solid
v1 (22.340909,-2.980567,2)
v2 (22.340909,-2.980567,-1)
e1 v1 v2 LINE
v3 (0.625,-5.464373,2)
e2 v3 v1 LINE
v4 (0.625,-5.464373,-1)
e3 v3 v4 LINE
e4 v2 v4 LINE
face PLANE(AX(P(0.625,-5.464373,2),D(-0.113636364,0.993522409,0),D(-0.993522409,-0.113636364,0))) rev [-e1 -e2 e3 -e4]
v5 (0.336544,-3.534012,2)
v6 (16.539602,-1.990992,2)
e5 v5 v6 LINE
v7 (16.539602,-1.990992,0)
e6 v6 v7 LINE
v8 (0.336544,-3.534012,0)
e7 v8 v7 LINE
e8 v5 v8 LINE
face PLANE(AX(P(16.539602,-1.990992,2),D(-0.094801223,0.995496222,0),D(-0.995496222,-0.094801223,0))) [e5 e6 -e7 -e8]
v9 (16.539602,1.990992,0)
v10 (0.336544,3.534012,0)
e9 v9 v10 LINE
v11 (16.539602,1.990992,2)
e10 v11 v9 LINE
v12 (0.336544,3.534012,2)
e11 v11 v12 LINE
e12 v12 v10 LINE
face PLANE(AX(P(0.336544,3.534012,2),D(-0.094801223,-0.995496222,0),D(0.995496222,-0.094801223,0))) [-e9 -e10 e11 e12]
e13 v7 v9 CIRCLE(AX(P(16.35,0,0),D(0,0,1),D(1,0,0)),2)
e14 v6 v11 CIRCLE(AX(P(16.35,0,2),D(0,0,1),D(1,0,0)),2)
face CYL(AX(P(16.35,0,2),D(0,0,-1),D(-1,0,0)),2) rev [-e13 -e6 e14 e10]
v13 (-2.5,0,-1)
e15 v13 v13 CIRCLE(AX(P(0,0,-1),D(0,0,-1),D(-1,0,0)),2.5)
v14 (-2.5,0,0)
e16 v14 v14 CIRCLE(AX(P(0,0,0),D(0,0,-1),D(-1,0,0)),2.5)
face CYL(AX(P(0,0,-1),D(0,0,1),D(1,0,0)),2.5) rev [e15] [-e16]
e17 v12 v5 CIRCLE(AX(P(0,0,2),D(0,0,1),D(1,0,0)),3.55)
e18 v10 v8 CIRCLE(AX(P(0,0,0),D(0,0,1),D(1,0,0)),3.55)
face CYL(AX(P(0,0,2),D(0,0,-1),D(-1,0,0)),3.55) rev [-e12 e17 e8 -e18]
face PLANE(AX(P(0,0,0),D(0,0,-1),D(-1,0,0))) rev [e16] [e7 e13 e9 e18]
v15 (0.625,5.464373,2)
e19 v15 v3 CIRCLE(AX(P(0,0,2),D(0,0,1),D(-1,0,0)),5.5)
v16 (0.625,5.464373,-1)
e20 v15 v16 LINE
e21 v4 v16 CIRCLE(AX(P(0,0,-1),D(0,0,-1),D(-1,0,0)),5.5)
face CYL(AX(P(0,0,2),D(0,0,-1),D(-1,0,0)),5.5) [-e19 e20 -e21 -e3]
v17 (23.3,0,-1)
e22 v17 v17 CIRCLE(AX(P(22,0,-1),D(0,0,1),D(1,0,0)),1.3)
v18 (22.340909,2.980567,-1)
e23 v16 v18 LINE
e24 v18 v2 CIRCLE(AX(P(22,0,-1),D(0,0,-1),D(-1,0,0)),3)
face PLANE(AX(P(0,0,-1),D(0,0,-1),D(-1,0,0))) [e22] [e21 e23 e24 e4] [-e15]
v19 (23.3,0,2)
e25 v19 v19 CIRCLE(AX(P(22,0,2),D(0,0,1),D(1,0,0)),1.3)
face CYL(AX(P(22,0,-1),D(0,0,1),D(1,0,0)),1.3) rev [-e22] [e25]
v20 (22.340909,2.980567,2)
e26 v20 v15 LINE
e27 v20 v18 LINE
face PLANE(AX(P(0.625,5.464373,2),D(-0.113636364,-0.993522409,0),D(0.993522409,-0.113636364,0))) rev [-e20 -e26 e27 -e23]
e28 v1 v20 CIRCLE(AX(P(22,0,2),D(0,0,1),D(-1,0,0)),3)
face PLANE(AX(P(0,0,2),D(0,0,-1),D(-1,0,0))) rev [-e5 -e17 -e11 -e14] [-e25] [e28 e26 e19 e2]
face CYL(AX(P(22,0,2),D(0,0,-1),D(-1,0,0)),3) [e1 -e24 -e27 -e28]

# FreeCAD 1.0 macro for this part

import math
import FreeCAD as App
import Part
import Sketcher
Q = App.Units.Quantity

doc = App.newDocument("Part")
body = doc.addObject("PartDesign::Body", "Body")

# Sketch on XY plane
sketch1 = doc.addObject("Sketcher::SketchObject", "Sketch")
body.addObject(sketch1)
sketch1.AttachmentSupport = (doc.XY_Plane, [""])
sketch1.MapMode = "FlatFace"
sketch1.addGeometry([
    Part.LineSegment(App.Vector(22.3, 3, 0), App.Vector(0.6, 5.5, 0)),  # 0
    Part.ArcOfCircle(Part.Circle(App.Vector(0, 0, 0), App.Vector(0, 0, 1), 5.5), math.radians(83), math.radians(277)),  # 1
    Part.LineSegment(App.Vector(0.6, -5.5, 0), App.Vector(22.3, -3, 0)),  # 2
    Part.ArcOfCircle(Part.Circle(App.Vector(22, 0, 0), App.Vector(0, 0, 1), 3), math.radians(-83), math.radians(83)),  # 3
    Part.LineSegment(App.Vector(0.3, 3.5, 0), App.Vector(16.5, 2, 0)),  # 4
    Part.ArcOfCircle(Part.Circle(App.Vector(16.4, 0, 0), App.Vector(0, 0, 1), 2), math.radians(-85), math.radians(85)),  # 5
    Part.LineSegment(App.Vector(16.5, -2, 0), App.Vector(0.3, -3.5, 0)),  # 6
    Part.ArcOfCircle(Part.Circle(App.Vector(0, 0, 0), App.Vector(0, 0, 1), 3.5), math.radians(85), math.radians(275)),  # 7
], False)
sketch1.addConstraint([
    Sketcher.Constraint("Tangent", 0, 2, 1, 1),
    Sketcher.Constraint("Tangent", 1, 2, 2, 1),
    Sketcher.Constraint("Tangent", 2, 2, 3, 1),
    Sketcher.Constraint("Tangent", 3, 2, 0, 1),
    Sketcher.Constraint("Tangent", 4, 2, 5, 2),
    Sketcher.Constraint("Tangent", 5, 1, 6, 1),
    Sketcher.Constraint("Tangent", 6, 2, 7, 2),
    Sketcher.Constraint("Tangent", 7, 1, 4, 1),
    Sketcher.Constraint("Coincident", 1, 3, -1, 1),
    Sketcher.Constraint("Coincident", 7, 3, -1, 1),
    Sketcher.Constraint("PointOnObject", 3, 3, -1),
    Sketcher.Constraint("PointOnObject", 5, 3, -1),
    Sketcher.Constraint("Radius", 3, Q("3 mm")),
    Sketcher.Constraint("Radius", 5, Q("2 mm")),
    Sketcher.Constraint("Radius", 1, Q("5.5 mm")),
    Sketcher.Constraint("Radius", 7, Q("3.55 mm")),
    Sketcher.Constraint("DistanceX", -1, 1, 3, 3, Q("22 mm")),
    Sketcher.Constraint("DistanceX", -1, 1, 5, 3, Q("16.35 mm")),
])
pad1 = doc.addObject("PartDesign::Pad", "Pad")
body.addObject(pad1)
pad1.Profile = sketch1
pad1.Length = 2

# Sketch on XY plane
sketch2 = doc.addObject("Sketcher::SketchObject", "Sketch001")
body.addObject(sketch2)
sketch2.AttachmentSupport = (doc.XY_Plane, [""])
sketch2.MapMode = "FlatFace"
sketch2.addGeometry([
    Part.LineSegment(App.Vector(22.3, -3, 0), App.Vector(0.6, -5.5, 0)),  # 0
    Part.ArcOfCircle(Part.Circle(App.Vector(0, 0, 0), App.Vector(0, 0, 1), 5.5), math.radians(83), math.radians(277)),  # 1
    Part.LineSegment(App.Vector(0.6, 5.5, 0), App.Vector(22.3, 3, 0)),  # 2
    Part.ArcOfCircle(Part.Circle(App.Vector(22, 0, 0), App.Vector(0, 0, 1), 3), math.radians(-83), math.radians(83)),  # 3
    Part.Circle(App.Vector(0, 0, 0), App.Vector(0, 0, 1), 2.5),  # 4
], False)
sketch2.addConstraint([
    Sketcher.Constraint("Tangent", 0, 2, 1, 2),
    Sketcher.Constraint("Tangent", 1, 1, 2, 1),
    Sketcher.Constraint("Tangent", 2, 2, 3, 2),
    Sketcher.Constraint("Tangent", 3, 1, 0, 1),
    Sketcher.Constraint("Coincident", 1, 3, -1, 1),
    Sketcher.Constraint("Coincident", 4, 3, -1, 1),
    Sketcher.Constraint("PointOnObject", 3, 3, -1),
    Sketcher.Constraint("Diameter", 4, Q("5 mm")),
    Sketcher.Constraint("Radius", 3, Q("3 mm")),
    Sketcher.Constraint("Radius", 1, Q("5.5 mm")),
    Sketcher.Constraint("DistanceX", -1, 1, 3, 3, Q("22 mm")),
])
pad2 = doc.addObject("PartDesign::Pad", "Pad001")
body.addObject(pad2)
pad2.Profile = sketch2
pad2.Length = 1
pad2.Reversed = True

# Sketch on XY plane
sketch3 = doc.addObject("Sketcher::SketchObject", "Sketch002")
body.addObject(sketch3)
sketch3.AttachmentSupport = (doc.XY_Plane, [""])
sketch3.MapMode = "FlatFace"
sketch3.AttachmentOffset = App.Placement(App.Vector(0, 0, 2), App.Rotation())
sketch3.addGeometry(Part.Circle(App.Vector(22, 0, 0), App.Vector(0, 0, 1), 1.3), False)
sketch3.addConstraint([
    Sketcher.Constraint("PointOnObject", 0, 3, -1),
    Sketcher.Constraint("Diameter", 0, Q("2.6 mm")),
    Sketcher.Constraint("DistanceX", -1, 1, 0, 3, Q("22 mm")),
])
pocket1 = doc.addObject("PartDesign::Pocket", "Pocket")
body.addObject(pocket1)
pocket1.Profile = sketch3
pocket1.Type = "ThroughAll"

doc.recompute()
